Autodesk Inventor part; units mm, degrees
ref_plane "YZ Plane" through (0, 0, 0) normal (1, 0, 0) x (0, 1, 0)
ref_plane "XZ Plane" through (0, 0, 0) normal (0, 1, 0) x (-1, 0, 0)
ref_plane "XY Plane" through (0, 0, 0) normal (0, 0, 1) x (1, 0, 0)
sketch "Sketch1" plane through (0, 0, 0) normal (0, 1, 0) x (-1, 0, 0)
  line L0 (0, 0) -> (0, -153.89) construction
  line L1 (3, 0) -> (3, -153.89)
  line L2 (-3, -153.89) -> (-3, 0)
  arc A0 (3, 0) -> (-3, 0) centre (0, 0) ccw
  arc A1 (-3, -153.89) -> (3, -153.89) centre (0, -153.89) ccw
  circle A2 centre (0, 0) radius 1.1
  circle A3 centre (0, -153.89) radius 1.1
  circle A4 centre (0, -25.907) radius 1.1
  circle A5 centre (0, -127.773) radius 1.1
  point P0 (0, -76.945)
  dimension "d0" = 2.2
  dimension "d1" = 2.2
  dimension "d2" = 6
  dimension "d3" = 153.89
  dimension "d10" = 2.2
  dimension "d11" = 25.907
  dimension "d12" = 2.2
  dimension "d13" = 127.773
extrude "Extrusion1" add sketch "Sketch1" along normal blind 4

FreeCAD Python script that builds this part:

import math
import FreeCAD as App
import Part
import Sketcher
from FreeCAD import Vector
Q = App.Units.Quantity

doc = App.newDocument("Part")
body = doc.addObject("PartDesign::Body", "Body")

# Sketch on XZ plane
sketch1 = body.newObject("Sketcher::SketchObject", "Sketch")
sketch1.AttachmentSupport = (doc.getObject("XZ_Plane"), [""])
sketch1.MapMode = "FlatFace"
sketch1.addGeometry(Part.LineSegment(Vector(-3, -153.9, 0), Vector(-3, 0, 0)), False)
sketch1.addGeometry(Part.ArcOfCircle(Part.Circle(Vector(0, 0, 0), Vector(0, 0, 1), 3), math.radians(0), math.radians(180)), False)
sketch1.addGeometry(Part.LineSegment(Vector(3, 0, 0), Vector(3, -153.9, 0)), False)
sketch1.addGeometry(Part.ArcOfCircle(Part.Circle(Vector(0, -153.9, 0), Vector(0, 0, 1), 3), math.radians(180), math.radians(360)), False)
sketch1.addGeometry(Part.Circle(Vector(0, -153.9, 0), Vector(0, 0, 1), 1.1), False)
sketch1.addGeometry(Part.Circle(Vector(0, -127.8, 0), Vector(0, 0, 1), 1.1), False)
sketch1.addGeometry(Part.Circle(Vector(0, -25.9, 0), Vector(0, 0, 1), 1.1), False)
sketch1.addGeometry(Part.Circle(Vector(0, 0, 0), Vector(0, 0, 1), 1.1), False)
sketch1.addConstraint(Sketcher.Constraint("Tangent", 0, 2, 1, 2))
sketch1.addConstraint(Sketcher.Constraint("Tangent", 1, 1, 2, 1))
sketch1.addConstraint(Sketcher.Constraint("Tangent", 2, 2, 3, 2))
sketch1.addConstraint(Sketcher.Constraint("Tangent", 3, 1, 0, 1))
sketch1.addConstraint(Sketcher.Constraint("Vertical", 0))
sketch1.addConstraint(Sketcher.Constraint("Vertical", 2))
sketch1.addConstraint(Sketcher.Constraint("Coincident", 1, 3, -1, 1))
sketch1.addConstraint(Sketcher.Constraint("Coincident", 7, 3, -1, 1))
sketch1.addConstraint(Sketcher.Constraint("Coincident", 4, 3, 3, 3))
sketch1.addConstraint(Sketcher.Constraint("Equal", 4, 5))
sketch1.addConstraint(Sketcher.Constraint("Equal", 5, 6))
sketch1.addConstraint(Sketcher.Constraint("Equal", 6, 7))
sketch1.addConstraint(Sketcher.Constraint("PointOnObject", 5, 3, -2))
sketch1.addConstraint(Sketcher.Constraint("PointOnObject", 6, 3, -2))
sketch1.addConstraint(Sketcher.Constraint("Radius", 1, Q("3 mm")))
sketch1.addConstraint(Sketcher.Constraint("Diameter", 4, Q("2.2 mm")))
sketch1.addConstraint(Sketcher.Constraint("DistanceY", 0, 1, 0, 2, Q("153.89 mm")))
sketch1.addConstraint(Sketcher.Constraint("DistanceY", 5, 3, -1, 1, Q("127.773 mm")))
sketch1.addConstraint(Sketcher.Constraint("DistanceY", 6, 3, -1, 1, Q("25.907 mm")))
pad1 = body.newObject("PartDesign::Pad", "Pad")
pad1.Profile = sketch1
pad1.Length = 4
pad1.Reversed = True

doc.recompute()
